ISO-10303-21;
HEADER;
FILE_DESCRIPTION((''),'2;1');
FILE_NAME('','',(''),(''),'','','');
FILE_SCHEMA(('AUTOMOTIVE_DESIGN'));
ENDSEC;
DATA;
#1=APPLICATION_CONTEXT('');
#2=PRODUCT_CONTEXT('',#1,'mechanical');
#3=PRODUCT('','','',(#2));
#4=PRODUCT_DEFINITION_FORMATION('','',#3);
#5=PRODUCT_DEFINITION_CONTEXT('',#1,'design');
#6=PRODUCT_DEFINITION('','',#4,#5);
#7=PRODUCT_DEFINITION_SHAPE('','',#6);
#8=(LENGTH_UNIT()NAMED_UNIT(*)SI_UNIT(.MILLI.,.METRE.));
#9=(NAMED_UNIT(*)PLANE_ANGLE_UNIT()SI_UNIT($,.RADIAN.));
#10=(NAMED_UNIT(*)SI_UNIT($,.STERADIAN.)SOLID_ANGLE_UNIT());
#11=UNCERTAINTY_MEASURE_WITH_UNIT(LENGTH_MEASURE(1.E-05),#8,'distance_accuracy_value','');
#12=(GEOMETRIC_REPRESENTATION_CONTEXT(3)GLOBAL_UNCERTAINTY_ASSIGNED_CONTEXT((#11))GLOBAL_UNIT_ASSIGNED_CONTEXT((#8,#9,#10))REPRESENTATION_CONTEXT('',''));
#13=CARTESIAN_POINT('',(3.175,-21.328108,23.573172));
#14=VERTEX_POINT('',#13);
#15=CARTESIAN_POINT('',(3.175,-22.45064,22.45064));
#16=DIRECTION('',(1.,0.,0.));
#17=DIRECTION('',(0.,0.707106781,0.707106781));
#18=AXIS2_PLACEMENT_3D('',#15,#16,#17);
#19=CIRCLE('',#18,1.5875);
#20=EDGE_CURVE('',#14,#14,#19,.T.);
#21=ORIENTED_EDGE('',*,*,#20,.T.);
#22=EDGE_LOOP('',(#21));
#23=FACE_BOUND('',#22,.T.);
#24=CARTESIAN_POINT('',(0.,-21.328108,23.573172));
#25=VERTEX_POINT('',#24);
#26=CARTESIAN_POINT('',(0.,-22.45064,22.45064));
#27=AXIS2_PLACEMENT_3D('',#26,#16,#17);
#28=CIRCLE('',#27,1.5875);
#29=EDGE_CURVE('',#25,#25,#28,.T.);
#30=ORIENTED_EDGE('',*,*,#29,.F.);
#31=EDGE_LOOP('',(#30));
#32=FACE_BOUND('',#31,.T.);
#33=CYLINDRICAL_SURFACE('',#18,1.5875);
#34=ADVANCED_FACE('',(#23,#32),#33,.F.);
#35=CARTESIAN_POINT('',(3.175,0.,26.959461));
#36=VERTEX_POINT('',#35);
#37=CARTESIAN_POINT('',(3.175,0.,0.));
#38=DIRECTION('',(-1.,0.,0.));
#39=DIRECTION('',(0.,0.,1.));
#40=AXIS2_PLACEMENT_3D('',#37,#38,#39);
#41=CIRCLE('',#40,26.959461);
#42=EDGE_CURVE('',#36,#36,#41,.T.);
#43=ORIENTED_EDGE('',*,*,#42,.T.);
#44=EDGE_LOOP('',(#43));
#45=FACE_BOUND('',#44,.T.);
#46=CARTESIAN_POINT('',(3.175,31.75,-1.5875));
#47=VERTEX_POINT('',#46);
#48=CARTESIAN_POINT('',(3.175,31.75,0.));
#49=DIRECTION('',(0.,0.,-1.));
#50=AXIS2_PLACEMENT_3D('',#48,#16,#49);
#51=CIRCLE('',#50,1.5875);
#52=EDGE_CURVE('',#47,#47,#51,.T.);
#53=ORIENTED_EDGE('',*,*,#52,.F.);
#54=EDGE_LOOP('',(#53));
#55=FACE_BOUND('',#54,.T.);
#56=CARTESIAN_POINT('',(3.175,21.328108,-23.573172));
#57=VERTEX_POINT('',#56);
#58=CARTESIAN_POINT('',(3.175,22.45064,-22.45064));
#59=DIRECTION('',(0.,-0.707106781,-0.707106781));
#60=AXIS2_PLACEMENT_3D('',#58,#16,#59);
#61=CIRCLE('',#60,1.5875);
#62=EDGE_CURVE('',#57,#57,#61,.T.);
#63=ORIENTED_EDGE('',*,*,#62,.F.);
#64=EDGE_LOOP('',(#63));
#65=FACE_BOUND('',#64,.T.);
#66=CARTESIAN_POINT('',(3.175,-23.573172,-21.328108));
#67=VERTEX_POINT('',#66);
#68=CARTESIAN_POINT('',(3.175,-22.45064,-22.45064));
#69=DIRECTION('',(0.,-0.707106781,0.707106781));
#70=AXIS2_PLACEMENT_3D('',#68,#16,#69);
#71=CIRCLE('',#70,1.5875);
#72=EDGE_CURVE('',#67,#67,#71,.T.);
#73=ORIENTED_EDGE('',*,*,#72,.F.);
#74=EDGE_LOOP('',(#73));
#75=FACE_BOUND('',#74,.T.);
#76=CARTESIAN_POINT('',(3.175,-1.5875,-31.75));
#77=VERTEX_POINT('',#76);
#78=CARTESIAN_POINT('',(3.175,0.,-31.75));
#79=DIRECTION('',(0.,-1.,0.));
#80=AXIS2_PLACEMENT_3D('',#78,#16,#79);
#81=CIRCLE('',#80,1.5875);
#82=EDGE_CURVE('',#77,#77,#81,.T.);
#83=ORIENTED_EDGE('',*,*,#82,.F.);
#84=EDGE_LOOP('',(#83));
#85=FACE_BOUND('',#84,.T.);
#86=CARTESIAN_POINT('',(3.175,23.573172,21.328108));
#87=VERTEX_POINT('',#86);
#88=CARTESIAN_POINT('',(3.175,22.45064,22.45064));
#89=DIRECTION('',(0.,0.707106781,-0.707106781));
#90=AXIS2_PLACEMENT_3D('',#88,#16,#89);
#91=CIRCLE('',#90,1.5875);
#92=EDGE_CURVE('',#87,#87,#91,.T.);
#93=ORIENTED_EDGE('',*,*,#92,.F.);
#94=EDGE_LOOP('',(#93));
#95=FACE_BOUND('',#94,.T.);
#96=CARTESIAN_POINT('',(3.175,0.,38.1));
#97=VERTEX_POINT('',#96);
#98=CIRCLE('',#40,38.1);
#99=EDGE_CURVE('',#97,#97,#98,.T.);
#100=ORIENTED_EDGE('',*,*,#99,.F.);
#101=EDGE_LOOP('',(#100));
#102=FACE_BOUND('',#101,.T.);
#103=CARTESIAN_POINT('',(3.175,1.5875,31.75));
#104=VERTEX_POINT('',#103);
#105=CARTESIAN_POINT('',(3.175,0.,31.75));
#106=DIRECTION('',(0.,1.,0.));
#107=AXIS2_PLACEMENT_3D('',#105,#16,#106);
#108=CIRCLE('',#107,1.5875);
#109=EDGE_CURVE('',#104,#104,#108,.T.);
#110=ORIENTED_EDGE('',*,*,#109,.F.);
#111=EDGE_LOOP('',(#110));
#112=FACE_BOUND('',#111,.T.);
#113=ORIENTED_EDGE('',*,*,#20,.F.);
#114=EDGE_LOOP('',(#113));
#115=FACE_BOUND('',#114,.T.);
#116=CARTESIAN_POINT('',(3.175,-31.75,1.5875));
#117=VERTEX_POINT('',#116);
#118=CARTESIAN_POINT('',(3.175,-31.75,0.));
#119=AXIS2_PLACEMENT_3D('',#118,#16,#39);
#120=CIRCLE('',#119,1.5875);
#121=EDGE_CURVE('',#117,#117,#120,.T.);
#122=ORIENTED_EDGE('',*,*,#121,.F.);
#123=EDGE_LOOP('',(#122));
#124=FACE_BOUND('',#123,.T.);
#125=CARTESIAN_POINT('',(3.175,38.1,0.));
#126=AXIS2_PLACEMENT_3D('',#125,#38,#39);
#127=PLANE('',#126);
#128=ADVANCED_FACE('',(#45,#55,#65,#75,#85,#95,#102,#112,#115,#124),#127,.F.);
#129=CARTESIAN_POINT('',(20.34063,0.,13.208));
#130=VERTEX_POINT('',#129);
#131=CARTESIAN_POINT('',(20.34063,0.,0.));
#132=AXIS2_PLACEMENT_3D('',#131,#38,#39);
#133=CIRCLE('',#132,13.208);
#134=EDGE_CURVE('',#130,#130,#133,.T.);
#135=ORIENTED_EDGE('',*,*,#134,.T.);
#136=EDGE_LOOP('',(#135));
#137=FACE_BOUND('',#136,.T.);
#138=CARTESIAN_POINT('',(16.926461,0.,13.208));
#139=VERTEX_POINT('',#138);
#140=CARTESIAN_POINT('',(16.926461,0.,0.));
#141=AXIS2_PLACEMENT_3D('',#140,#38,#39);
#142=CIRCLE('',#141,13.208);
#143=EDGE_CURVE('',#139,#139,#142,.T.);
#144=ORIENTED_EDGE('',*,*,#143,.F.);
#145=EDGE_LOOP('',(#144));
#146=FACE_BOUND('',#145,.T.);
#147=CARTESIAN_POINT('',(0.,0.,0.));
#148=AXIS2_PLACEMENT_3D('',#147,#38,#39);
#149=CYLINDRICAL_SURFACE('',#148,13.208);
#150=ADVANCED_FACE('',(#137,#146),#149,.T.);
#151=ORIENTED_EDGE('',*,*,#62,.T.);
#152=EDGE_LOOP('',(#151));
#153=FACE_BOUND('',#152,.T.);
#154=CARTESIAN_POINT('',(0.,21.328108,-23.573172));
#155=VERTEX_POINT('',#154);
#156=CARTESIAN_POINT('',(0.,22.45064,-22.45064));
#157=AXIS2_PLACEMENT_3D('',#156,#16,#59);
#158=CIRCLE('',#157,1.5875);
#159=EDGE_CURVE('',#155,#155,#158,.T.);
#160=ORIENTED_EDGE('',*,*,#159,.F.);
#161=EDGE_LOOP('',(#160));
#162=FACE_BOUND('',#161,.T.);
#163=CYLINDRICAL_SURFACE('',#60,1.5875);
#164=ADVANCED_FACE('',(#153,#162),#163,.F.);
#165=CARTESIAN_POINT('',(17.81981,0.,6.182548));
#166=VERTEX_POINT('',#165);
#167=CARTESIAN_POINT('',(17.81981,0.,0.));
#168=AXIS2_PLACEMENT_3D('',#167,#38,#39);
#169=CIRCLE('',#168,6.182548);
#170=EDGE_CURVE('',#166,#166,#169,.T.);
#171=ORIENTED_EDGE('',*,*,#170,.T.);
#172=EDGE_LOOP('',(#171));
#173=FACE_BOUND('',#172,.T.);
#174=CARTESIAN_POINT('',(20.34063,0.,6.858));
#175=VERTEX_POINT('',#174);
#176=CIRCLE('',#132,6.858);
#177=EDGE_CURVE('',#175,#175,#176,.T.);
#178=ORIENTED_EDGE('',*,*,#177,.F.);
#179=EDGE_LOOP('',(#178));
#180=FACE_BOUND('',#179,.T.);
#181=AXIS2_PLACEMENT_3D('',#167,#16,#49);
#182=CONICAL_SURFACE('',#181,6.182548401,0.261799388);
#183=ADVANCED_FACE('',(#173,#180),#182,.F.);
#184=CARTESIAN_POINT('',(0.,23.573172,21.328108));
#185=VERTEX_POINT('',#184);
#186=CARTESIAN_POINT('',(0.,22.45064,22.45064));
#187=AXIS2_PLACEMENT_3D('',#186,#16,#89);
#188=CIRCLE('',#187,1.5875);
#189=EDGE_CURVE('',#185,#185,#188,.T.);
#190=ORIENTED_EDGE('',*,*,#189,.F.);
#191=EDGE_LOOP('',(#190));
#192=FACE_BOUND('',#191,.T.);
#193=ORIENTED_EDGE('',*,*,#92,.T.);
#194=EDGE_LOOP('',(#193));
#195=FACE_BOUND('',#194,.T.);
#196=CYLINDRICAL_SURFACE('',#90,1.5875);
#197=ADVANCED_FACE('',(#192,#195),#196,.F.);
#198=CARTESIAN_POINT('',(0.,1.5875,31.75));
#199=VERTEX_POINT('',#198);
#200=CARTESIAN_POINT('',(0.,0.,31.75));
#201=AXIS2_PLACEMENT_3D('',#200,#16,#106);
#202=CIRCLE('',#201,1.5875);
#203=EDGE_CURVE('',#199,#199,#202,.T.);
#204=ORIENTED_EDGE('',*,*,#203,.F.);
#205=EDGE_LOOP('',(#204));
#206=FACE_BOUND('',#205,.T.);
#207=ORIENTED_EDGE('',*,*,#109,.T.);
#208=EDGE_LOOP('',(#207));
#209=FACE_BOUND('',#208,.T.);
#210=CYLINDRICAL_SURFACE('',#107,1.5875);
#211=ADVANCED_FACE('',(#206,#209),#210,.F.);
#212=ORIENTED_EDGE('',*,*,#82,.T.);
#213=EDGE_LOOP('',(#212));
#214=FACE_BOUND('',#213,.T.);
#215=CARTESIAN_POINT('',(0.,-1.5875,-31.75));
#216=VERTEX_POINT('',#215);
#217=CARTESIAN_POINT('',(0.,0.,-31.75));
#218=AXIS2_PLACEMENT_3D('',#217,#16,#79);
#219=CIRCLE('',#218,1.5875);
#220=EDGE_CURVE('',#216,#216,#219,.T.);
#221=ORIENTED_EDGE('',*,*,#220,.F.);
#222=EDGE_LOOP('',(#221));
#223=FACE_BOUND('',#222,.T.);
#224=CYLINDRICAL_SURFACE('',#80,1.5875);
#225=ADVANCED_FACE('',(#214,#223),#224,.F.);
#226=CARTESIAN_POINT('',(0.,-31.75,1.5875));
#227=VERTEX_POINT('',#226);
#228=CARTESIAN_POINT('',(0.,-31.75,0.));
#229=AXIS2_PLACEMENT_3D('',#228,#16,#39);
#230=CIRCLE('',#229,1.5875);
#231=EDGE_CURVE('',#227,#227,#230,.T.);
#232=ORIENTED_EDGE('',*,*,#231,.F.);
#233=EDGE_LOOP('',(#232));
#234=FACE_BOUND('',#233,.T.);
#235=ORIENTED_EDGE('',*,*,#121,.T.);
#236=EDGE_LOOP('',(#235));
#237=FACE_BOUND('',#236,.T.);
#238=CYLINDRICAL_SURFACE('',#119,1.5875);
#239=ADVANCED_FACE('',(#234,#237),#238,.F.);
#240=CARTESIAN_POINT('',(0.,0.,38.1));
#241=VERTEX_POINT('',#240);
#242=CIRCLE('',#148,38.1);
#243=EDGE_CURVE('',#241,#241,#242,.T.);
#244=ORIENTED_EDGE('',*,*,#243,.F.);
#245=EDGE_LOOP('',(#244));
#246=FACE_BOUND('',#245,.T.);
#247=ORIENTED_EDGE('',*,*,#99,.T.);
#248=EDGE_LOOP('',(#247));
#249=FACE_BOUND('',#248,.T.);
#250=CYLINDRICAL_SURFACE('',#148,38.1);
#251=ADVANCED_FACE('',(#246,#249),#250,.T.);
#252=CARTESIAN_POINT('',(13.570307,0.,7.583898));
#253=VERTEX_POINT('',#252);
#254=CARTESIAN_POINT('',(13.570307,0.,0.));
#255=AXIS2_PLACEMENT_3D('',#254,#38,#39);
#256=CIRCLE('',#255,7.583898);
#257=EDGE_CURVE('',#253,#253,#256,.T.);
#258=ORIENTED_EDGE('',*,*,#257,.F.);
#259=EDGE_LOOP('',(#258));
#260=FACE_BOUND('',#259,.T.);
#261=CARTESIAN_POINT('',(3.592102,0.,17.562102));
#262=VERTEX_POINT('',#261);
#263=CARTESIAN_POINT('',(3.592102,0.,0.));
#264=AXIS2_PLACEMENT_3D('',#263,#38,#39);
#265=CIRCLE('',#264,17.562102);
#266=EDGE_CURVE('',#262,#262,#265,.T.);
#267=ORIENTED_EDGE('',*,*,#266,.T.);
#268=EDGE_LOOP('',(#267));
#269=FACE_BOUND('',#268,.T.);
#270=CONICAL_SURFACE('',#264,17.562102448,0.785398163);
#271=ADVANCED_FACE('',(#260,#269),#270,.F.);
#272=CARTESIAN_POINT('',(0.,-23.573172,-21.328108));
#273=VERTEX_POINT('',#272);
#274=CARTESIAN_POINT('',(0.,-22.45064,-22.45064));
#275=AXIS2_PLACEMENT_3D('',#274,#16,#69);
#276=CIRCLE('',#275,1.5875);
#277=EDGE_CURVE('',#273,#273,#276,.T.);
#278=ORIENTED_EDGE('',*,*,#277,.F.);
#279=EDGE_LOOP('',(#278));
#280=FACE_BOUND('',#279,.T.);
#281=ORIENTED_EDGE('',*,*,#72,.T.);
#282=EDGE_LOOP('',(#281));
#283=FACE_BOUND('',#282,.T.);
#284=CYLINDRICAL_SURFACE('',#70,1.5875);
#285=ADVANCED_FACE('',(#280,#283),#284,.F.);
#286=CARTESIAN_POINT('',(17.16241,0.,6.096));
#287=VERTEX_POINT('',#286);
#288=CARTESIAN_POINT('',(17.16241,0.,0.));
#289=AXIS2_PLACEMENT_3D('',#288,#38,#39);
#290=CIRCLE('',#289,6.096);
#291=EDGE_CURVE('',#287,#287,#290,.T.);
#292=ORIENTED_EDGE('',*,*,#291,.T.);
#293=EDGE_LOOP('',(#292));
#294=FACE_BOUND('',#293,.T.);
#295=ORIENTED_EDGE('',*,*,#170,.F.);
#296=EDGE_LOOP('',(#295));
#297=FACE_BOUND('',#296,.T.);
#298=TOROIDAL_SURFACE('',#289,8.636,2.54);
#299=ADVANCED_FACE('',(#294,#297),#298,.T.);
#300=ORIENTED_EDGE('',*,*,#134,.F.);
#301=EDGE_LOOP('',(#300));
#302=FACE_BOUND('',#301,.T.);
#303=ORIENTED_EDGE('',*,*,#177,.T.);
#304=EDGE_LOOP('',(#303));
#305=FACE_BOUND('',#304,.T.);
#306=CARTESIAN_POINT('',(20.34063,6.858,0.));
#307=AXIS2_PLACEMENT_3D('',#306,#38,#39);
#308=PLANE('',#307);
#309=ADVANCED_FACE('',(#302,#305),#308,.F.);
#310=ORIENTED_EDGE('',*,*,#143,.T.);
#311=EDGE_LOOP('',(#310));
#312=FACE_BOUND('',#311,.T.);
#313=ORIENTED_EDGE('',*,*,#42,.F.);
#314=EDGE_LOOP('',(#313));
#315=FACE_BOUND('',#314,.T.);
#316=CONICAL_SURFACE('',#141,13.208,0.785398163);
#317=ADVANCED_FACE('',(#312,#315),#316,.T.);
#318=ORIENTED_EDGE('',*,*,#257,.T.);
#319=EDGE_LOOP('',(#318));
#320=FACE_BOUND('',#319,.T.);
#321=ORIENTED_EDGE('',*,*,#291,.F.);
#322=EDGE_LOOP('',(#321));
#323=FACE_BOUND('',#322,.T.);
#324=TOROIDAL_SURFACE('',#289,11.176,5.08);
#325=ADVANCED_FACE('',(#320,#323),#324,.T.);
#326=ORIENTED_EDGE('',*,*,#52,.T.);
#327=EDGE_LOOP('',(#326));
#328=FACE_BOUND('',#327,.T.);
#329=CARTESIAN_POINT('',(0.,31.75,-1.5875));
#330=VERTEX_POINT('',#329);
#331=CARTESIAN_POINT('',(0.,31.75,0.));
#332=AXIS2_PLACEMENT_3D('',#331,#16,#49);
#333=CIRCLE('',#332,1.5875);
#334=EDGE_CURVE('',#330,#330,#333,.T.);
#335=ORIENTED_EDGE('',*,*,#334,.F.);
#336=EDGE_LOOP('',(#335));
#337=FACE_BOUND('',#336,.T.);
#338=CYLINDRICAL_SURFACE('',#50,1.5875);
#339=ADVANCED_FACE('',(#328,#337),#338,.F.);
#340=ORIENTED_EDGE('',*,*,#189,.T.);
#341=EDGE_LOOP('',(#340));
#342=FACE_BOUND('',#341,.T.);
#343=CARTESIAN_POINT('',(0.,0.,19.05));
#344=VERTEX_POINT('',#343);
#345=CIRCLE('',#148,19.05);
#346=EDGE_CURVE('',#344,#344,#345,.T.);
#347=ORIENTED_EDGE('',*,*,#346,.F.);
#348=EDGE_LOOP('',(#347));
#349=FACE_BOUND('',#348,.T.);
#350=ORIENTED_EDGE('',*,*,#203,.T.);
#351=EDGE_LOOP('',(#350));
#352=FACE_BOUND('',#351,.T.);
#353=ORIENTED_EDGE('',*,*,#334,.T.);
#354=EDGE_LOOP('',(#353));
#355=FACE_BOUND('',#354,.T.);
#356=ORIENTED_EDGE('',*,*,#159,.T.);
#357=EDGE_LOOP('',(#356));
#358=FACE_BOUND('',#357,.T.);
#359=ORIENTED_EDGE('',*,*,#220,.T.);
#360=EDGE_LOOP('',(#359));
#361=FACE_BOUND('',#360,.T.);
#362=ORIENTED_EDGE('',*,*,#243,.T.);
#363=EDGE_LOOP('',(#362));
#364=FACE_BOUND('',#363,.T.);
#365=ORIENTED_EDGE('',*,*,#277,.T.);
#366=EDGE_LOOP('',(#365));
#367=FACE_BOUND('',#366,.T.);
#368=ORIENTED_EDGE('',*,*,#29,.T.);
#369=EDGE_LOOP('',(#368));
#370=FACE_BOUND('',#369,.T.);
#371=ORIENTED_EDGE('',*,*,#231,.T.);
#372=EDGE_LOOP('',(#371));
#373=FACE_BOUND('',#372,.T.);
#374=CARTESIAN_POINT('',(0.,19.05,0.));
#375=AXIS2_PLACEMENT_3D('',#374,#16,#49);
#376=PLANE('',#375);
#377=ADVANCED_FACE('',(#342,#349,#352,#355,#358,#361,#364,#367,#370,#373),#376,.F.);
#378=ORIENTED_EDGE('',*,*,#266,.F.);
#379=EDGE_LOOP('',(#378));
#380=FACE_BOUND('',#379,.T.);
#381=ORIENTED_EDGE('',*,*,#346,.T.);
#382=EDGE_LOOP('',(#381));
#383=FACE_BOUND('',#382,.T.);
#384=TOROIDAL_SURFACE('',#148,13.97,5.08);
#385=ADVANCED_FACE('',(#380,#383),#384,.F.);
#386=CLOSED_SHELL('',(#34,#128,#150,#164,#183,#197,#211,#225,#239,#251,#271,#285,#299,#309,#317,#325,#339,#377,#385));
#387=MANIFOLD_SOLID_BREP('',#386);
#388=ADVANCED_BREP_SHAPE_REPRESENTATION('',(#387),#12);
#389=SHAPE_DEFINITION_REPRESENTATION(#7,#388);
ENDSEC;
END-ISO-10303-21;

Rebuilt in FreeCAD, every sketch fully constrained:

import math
import FreeCAD as App
import Part
import Sketcher
from FreeCAD import Vector
Q = App.Units.Quantity

doc = App.newDocument("Part")
body = doc.addObject("PartDesign::Body", "Body")

# Sketch on XY plane
sketch1 = doc.addObject("Sketcher::SketchObject", "Sketch")
body.addObject(sketch1)
sketch1.AttachmentSupport = (doc.XY_Plane, [""])
sketch1.MapMode = "FlatFace"
sketch1.addGeometry([
    Part.LineSegment(Vector(3.6, 17.6, 0), Vector(13.6, 7.6, 0)),  # 0
    Part.ArcOfCircle(Part.Circle(Vector(17.2, 11.2, 0), Vector(0, 0, 1), 5.1), math.radians(-135), math.radians(-90)),  # 1
    Part.ArcOfCircle(Part.Circle(Vector(17.2, 8.6, 0), Vector(0, 0, 1), 2.5), math.radians(-90), math.radians(-75)),  # 2
    Part.LineSegment(Vector(17.8, 6.2, 0), Vector(20.3, 6.9, 0)),  # 3
    Part.LineSegment(Vector(20.3, 6.9, 0), Vector(20.3, 13.2, 0)),  # 4
    Part.LineSegment(Vector(20.3, 13.2, 0), Vector(16.9, 13.2, 0)),  # 5
    Part.LineSegment(Vector(16.9, 13.2, 0), Vector(3.2, 27, 0)),  # 6
    Part.LineSegment(Vector(3.2, 27, 0), Vector(3.2, 38.1, 0)),  # 7
    Part.LineSegment(Vector(3.2, 38.1, 0), Vector(0, 38.1, 0)),  # 8
    Part.LineSegment(Vector(0, 38.1, 0), Vector(0, 19.1, 0)),  # 9
    Part.ArcOfCircle(Part.Circle(Vector(0, 14, 0), Vector(0, 0, 1), 5.1), math.radians(45), math.radians(90)),  # 10
], False)
sketch1.addConstraint([
    Sketcher.Constraint("Tangent", 0, 2, 1, 1),
    Sketcher.Constraint("Tangent", 1, 2, 2, 1),
    Sketcher.Constraint("Tangent", 2, 2, 3, 1),
    Sketcher.Constraint("Coincident", 3, 2, 4, 1),
    Sketcher.Constraint("Coincident", 4, 2, 5, 1),
    Sketcher.Constraint("Coincident", 5, 2, 6, 1),
    Sketcher.Constraint("Coincident", 6, 2, 7, 1),
    Sketcher.Constraint("Coincident", 7, 2, 8, 1),
    Sketcher.Constraint("Coincident", 8, 2, 9, 1),
    Sketcher.Constraint("Coincident", 9, 2, 10, 2),
    Sketcher.Constraint("Tangent", 10, 1, 0, 1),
    Sketcher.Constraint("Vertical", 4),
    Sketcher.Constraint("Horizontal", 5),
    Sketcher.Constraint("Vertical", 7),
    Sketcher.Constraint("Horizontal", 8),
    Sketcher.Constraint("Vertical", 9),
    Sketcher.Constraint("Equal", 1, 10),
    Sketcher.Constraint("PointOnObject", 10, 3, -2),
    Sketcher.Constraint("PointOnObject", 8, 2, -2),
    Sketcher.Constraint("Parallel", 0, 6),
    Sketcher.Constraint("Vertical", 1, 3, 2, 3),
    Sketcher.Constraint("Radius", 1, Q("0.2 in")),
    Sketcher.Constraint("Radius", 2, Q("0.1 in")),
    Sketcher.Constraint("Angle", 0, Q("-45 deg")),
    Sketcher.Constraint("Angle", 3, Q("15 deg")),
    Sketcher.Constraint("DistanceY", 4, 1, 4, 2, Q("0.25 in")),
    Sketcher.Constraint("DistanceY", 9, 2, 9, 1, Q("0.75 in")),
    Sketcher.Constraint("DistanceY", -1, 1, 7, 2, Q("1.5 in")),
    Sketcher.Constraint("DistanceX", 8, 2, 8, 1, Q("0.125 in")),
    Sketcher.Constraint("DistanceY", -1, 1, 1, 3, Q("0.44 in")),
    Sketcher.Constraint("DistanceY", -1, 1, 3, 2, Q("0.27 in")),
    Sketcher.Constraint("DistanceX", 5, 2, 5, 1, Q("3.414169 mm")),
])
revolution = doc.addObject("PartDesign::Revolution", "Revolution")
body.addObject(revolution)
revolution.Profile = sketch1
revolution.ReferenceAxis = (sketch1, ["H_Axis"])
revolution.Angle = 360

# Sketch on YZ plane
sketch2 = doc.addObject("Sketcher::SketchObject", "Sketch001")
body.addObject(sketch2)
sketch2.AttachmentSupport = (doc.YZ_Plane, [""])
sketch2.MapMode = "FlatFace"
sketch2.AttachmentOffset = App.Placement(Vector(0, 0, 0.125 * 25.4), App.Rotation())
sketch2.addGeometry(Part.Circle(Vector(31.8, 0, 0), Vector(0, 0, 1), 1.6), False)
sketch2.addConstraint([
    Sketcher.Constraint("PointOnObject", 0, 3, -1),
    Sketcher.Constraint("Diameter", 0, Q("0.125 in")),
    Sketcher.Constraint("DistanceX", -1, 1, 0, 3, Q("1.25 in")),
])
doc.recompute()
hole = doc.addObject("PartDesign::Hole", "Hole")
body.addObject(hole)
hole.Profile = sketch2
hole.ThreadType = "None"
hole.Diameter = Q("0.125 in")
hole.DepthType = "ThroughAll"
doc.recompute()

polarpattern = doc.addObject("PartDesign::PolarPattern", "PolarPattern")
body.addObject(polarpattern)
polarpattern.Originals = [hole]
polarpattern.Axis = (doc.X_Axis, [""])
polarpattern.Angle = 360
polarpattern.Occurrences = 8
body.Tip = polarpattern

doc.recompute()
